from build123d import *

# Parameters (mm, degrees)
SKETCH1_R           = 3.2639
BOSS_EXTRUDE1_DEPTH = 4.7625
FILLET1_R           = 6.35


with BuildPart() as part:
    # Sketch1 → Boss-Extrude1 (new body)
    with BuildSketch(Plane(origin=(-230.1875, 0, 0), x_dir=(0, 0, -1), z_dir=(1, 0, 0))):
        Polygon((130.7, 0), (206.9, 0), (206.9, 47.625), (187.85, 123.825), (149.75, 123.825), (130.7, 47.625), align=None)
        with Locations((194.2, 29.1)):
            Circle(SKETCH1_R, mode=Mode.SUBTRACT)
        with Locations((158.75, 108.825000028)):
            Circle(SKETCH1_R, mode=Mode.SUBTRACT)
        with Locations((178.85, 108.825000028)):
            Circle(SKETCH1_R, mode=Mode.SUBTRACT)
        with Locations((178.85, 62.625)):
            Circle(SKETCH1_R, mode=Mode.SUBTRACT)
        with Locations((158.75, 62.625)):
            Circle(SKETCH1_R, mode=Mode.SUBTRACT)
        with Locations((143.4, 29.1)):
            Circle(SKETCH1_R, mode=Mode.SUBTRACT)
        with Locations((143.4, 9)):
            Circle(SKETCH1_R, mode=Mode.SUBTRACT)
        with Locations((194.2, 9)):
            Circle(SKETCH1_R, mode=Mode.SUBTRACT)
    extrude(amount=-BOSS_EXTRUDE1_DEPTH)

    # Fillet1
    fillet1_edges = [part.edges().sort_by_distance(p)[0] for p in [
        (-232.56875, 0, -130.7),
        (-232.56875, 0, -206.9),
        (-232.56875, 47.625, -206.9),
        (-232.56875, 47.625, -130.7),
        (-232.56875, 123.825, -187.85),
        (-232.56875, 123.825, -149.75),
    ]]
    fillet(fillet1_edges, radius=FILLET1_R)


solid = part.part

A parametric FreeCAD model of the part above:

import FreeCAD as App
import Part
import Sketcher
Q = App.Units.Quantity


def edges_at(feature, points):
    """Names of the edges that pass closest to the given points."""
    edges = feature.Shape.Edges
    near = lambda p: min(range(len(edges)), key=lambda i: edges[i].distToShape(Part.Vertex(*p))[0])
    return sorted({f"Edge{near(p) + 1}" for p in points})


def add_polygon(sketch, points):
    """Adds a closed chain of lines whose ends are joined by coincident constraints."""
    first, n = sketch.GeometryCount, len(points)
    for a, b in zip(points, points[1:] + points[:1]):
        sketch.addGeometry(Part.LineSegment(App.Vector(*a, 0), App.Vector(*b, 0)), False)
    for i in range(n):
        sketch.addConstraint(Sketcher.Constraint("Coincident", first + i, 2, first + (i + 1) % n, 1))

doc = App.newDocument("Part")
body = doc.addObject("PartDesign::Body", "Body")

sketch1 = doc.addObject("Sketcher::SketchObject", "Sketch")
body.addObject(sketch1)
sketch1.AttachmentSupport = (doc.YZ_Plane, [""])
sketch1.MapMode = "FlatFace"
sketch1.AttachmentOffset = App.Placement(App.Vector(0, 0, -9.0625 * 25.4), App.Rotation())
add_polygon(sketch1, [(0, -130.7), (0, -206.9), (47.6, -206.9), (123.8, -187.8), (123.8, -149.8), (47.6, -130.7)])
sketch1.addGeometry(Part.Circle(App.Vector(9, -143.4, 0), App.Vector(0, 0, 1), 3.3), False)
sketch1.addGeometry(Part.Circle(App.Vector(29.1, -143.4, 0), App.Vector(0, 0, 1), 3.3), False)
sketch1.addGeometry(Part.Circle(App.Vector(9, -194.2, 0), App.Vector(0, 0, 1), 3.3), False)
sketch1.addGeometry(Part.Circle(App.Vector(29.1, -194.2, 0), App.Vector(0, 0, 1), 3.3), False)
sketch1.addGeometry(Part.Circle(App.Vector(62.6, -158.8, 0), App.Vector(0, 0, 1), 3.3), False)
sketch1.addGeometry(Part.Circle(App.Vector(108.8, -158.8, 0), App.Vector(0, 0, 1), 3.3), False)
sketch1.addGeometry(Part.Circle(App.Vector(62.6, -178.8, 0), App.Vector(0, 0, 1), 3.3), False)
sketch1.addGeometry(Part.Circle(App.Vector(108.8, -178.8, 0), App.Vector(0, 0, 1), 3.3), False)
sketch1.addConstraint([
    Sketcher.Constraint("Vertical", 0),
    Sketcher.Constraint("Horizontal", 1),
    Sketcher.Constraint("Vertical", 3),
    Sketcher.Constraint("Horizontal", 5),
    Sketcher.Constraint("Equal", 6, 7),
    Sketcher.Constraint("Equal", 7, 8),
    Sketcher.Constraint("Equal", 8, 9),
    Sketcher.Constraint("Equal", 9, 10),
    Sketcher.Constraint("Equal", 10, 11),
    Sketcher.Constraint("Equal", 11, 12),
    Sketcher.Constraint("Equal", 12, 13),
    Sketcher.Constraint("PointOnObject", 0, 2, -2),
    Sketcher.Constraint("Horizontal", 6, 3, 7, 3),
    Sketcher.Constraint("Horizontal", 8, 3, 9, 3),
    Sketcher.Constraint("Horizontal", 10, 3, 11, 3),
    Sketcher.Constraint("Horizontal", 12, 3, 13, 3),
    Sketcher.Constraint("Vertical", 6, 3, 8, 3),
    Sketcher.Constraint("Vertical", 7, 3, 9, 3),
    Sketcher.Constraint("Vertical", 10, 3, 12, 3),
    Sketcher.Constraint("Vertical", 11, 3, 13, 3),
    Sketcher.Constraint("Vertical", 1, 2, 4, 2),
    Sketcher.Constraint("Equal", 2, 4),
    Sketcher.Constraint("DistanceY", 0, 2, 0, 1, Q("3 in")),
    Sketcher.Constraint("Diameter", 6, Q("0.257 in")),
    Sketcher.Constraint("DistanceY", 3, 1, 3, 2, Q("1.5 in")),
    Sketcher.Constraint("DistanceY", 8, 3, 6, 3, Q("2 in")),
    Sketcher.Constraint("DistanceX", 1, 2, 2, 2, Q("3 in")),
    Sketcher.Constraint("DistanceY", 0, 2, 8, 3, Q("0.5 in")),
    Sketcher.Constraint("DistanceX", 1, 1, 1, 2, Q("1.875 in")),
    Sketcher.Constraint("DistanceY", 10, 3, -1, 1, Q("6.25 in")),
    Sketcher.Constraint("DistanceX", -1, 1, 6, 3, Q("9 mm")),
    Sketcher.Constraint("DistanceY", 6, 3, -1, 1, Q("143.4 mm")),
    Sketcher.Constraint("DistanceX", -1, 1, 7, 3, Q("29.1 mm")),
    Sketcher.Constraint("DistanceX", -1, 1, 10, 3, Q("62.625 mm")),
    Sketcher.Constraint("DistanceX", -1, 1, 11, 3, Q("108.825 mm")),
    Sketcher.Constraint("DistanceY", 12, 3, -1, 1, Q("178.85 mm")),
])
pad1 = doc.addObject("PartDesign::Pad", "Pad")
body.addObject(pad1)
pad1.Profile = sketch1
pad1.Length = Q("0.1875 in")
pad1.Reversed = True
doc.recompute()

fillet = doc.addObject("PartDesign::Fillet", "Fillet")
body.addObject(fillet)
fillet.Base = (pad1, edges_at(pad1, [
    (-232.569, 0, -130.7),
    (-232.569, 0, -206.9),
    (-232.569, 47.625, -206.9),
    (-232.569, 47.625, -130.7),
    (-232.569, 123.825, -187.85),
    (-232.569, 123.825, -149.75),
]))
fillet.Radius = Q("0.25 in")

doc.recompute()
